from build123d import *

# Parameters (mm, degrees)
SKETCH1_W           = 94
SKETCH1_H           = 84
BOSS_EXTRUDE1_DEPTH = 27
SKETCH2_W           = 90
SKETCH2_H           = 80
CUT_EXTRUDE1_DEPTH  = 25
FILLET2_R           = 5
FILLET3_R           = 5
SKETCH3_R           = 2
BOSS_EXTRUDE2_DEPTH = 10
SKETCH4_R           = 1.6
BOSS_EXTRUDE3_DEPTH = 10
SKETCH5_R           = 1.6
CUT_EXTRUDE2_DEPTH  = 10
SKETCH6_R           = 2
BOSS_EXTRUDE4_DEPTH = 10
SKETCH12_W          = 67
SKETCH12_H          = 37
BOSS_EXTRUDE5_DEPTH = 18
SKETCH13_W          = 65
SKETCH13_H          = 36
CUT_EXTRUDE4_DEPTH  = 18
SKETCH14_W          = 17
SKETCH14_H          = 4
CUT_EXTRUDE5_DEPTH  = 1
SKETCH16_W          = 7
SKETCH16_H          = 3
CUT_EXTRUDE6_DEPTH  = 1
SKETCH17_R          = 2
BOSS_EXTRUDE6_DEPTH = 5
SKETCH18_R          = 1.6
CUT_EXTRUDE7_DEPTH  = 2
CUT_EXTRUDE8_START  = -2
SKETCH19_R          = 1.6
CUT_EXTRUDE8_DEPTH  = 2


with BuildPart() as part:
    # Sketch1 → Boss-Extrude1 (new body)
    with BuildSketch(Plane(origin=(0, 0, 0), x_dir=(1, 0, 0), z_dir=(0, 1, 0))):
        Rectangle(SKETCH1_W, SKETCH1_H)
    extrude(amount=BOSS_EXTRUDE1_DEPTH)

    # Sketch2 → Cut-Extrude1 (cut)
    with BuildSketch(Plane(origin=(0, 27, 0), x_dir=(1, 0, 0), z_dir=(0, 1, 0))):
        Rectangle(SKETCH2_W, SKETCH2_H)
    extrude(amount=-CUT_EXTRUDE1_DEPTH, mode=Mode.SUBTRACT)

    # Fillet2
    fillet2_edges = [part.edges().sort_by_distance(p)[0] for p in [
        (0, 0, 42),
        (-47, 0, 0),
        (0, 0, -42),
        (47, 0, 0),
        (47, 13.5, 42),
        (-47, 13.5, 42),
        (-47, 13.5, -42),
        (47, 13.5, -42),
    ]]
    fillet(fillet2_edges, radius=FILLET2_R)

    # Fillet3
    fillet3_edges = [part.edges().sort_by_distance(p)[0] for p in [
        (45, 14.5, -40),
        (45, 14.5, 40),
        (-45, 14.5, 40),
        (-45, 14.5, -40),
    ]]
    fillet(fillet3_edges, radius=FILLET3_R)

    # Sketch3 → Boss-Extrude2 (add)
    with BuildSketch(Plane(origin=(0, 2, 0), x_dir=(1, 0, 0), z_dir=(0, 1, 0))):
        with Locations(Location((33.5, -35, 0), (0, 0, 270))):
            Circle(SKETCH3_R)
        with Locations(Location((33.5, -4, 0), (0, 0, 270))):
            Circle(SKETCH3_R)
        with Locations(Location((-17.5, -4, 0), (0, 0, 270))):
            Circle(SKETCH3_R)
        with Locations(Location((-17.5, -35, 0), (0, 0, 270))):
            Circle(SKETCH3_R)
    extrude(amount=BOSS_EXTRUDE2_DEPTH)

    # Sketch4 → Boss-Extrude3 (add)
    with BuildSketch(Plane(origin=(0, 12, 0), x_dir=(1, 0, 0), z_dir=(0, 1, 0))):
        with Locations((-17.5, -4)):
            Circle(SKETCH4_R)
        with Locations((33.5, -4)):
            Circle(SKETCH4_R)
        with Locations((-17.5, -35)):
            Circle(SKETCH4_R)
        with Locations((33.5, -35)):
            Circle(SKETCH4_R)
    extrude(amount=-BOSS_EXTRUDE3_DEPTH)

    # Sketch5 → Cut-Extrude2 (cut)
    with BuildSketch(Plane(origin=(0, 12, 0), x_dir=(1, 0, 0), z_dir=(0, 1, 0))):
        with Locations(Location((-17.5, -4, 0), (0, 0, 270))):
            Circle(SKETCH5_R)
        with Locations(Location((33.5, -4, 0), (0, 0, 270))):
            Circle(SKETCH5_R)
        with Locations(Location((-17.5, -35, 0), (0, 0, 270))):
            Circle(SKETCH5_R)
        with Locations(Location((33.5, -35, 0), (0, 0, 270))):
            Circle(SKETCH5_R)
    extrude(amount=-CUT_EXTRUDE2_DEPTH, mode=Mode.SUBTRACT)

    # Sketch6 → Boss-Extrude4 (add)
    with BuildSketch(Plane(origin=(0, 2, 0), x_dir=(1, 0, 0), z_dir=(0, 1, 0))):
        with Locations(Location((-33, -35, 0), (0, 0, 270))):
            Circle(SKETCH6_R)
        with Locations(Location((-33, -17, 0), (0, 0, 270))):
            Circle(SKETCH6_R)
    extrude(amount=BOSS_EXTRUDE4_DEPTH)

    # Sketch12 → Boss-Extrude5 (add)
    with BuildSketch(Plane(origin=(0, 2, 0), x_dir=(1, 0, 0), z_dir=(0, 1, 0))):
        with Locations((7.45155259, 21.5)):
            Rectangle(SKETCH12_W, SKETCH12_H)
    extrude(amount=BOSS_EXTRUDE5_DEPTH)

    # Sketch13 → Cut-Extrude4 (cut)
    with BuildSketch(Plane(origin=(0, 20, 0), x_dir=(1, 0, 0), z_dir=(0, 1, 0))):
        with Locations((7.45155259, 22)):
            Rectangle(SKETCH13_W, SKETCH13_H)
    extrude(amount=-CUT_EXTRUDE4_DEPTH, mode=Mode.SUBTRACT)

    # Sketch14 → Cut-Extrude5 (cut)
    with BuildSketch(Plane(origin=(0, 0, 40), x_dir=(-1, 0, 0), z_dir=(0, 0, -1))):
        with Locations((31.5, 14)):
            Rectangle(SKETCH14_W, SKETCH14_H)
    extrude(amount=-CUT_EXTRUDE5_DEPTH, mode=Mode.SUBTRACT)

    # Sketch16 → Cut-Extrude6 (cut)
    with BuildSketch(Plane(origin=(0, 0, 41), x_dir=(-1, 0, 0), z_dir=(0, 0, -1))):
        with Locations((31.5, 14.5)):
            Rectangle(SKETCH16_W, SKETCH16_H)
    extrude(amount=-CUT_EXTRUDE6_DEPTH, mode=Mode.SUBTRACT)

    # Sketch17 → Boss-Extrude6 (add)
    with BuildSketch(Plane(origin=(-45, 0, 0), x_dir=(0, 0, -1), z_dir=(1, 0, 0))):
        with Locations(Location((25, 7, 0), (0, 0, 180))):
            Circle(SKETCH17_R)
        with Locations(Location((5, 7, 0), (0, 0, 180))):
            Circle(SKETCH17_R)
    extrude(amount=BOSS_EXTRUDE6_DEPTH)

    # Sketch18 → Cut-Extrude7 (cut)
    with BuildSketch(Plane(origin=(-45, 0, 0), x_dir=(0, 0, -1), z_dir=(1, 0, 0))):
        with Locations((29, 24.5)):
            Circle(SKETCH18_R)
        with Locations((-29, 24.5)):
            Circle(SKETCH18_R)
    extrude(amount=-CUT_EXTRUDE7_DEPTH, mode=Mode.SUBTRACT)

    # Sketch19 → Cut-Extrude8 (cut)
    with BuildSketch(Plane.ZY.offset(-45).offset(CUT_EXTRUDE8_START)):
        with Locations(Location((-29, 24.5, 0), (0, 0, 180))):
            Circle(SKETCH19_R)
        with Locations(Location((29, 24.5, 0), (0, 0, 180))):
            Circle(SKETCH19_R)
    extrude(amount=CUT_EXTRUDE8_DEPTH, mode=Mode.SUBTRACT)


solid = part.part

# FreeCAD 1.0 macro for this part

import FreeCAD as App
import Part
import Sketcher

V = App.Vector


def edges_at(feature, points):
    """Names of the edges that pass closest to the given points."""
    edges = feature.Shape.Edges
    near = lambda p: min(range(len(edges)), key=lambda i: edges[i].distToShape(Part.Vertex(*p))[0])
    return sorted({f"Edge{near(p) + 1}" for p in points})

doc = App.newDocument("Part")
params = doc.addObject("Spreadsheet::Sheet", "Params")
for row, (alias, value) in enumerate([
    ("sketch1_width", "94 mm"),
    ("sketch1_height", "84 mm"),
    ("pad1_length", "27 mm"),
    ("sketch2_width", "90 mm"),
    ("sketch2_height", "80 mm"),
    ("pocket1_length", "25 mm"),
    ("fillet_radius", "5 mm"),
    ("fillet2_radius", "5 mm"),
    ("sketch3_diameter", "4 mm"),
    ("pad2_length", "10 mm"),
    ("sketch4_diameter", "3.2 mm"),
    ("pad3_length", "10 mm"),
    ("sketch5_diameter", "3.2 mm"),
    ("pocket2_length", "10 mm"),
    ("sketch6_diameter", "4 mm"),
    ("pad4_length", "10 mm"),
    ("sketch7_width", "67 mm"),
    ("sketch7_height", "37 mm"),
    ("pad5_length", "18 mm"),
    ("sketch8_width", "65 mm"),
    ("sketch8_height", "36 mm"),
    ("pocket3_length", "18 mm"),
    ("sketch9_width", "17 mm"),
    ("sketch9_height", "4 mm"),
    ("pocket4_length", "1 mm"),
    ("sketch10_width", "7 mm"),
    ("sketch10_height", "3 mm"),
    ("pocket5_length", "1 mm"),
    ("sketch11_diameter", "4 mm"),
    ("pad6_length", "5 mm"),
    ("sketch12_diameter", "3.2 mm"),
    ("pocket6_length", "2 mm"),
    ("sketch13_diameter", "3.2 mm"),
    ("pocket7_length", "2 mm"),
], start=1):
    params.set(f"A{row}", alias)
    params.set(f"B{row}", "=" + value)
    params.setAlias(f"B{row}", alias)

body = doc.addObject("PartDesign::Body", "Body")

sketch1 = body.newObject("Sketcher::SketchObject", "Sketch")
sketch1.AttachmentSupport = (doc.getObject("XZ_Plane"), [""])
sketch1.MapMode = "FlatFace"
sketch1.addGeometry(Part.LineSegment(V(-47, -42, 0), V(-47, 42, 0)), False)
sketch1.addGeometry(Part.LineSegment(V(-47, 42, 0), V(47, 42, 0)), False)
sketch1.addGeometry(Part.LineSegment(V(47, 42, 0), V(47, -42, 0)), False)
sketch1.addGeometry(Part.LineSegment(V(47, -42, 0), V(-47, -42, 0)), False)
sketch1.addConstraint(Sketcher.Constraint("Coincident", 0, 2, 1, 1))
sketch1.addConstraint(Sketcher.Constraint("Coincident", 1, 2, 2, 1))
sketch1.addConstraint(Sketcher.Constraint("Coincident", 2, 2, 3, 1))
sketch1.addConstraint(Sketcher.Constraint("Coincident", 3, 2, 0, 1))
sketch1.addConstraint(Sketcher.Constraint("Vertical", 0))
sketch1.addConstraint(Sketcher.Constraint("Horizontal", 1))
sketch1.addConstraint(Sketcher.Constraint("Vertical", 2))
sketch1.addConstraint(Sketcher.Constraint("Horizontal", 3))
sketch1.addConstraint(Sketcher.Constraint("Symmetric", 0, 2, 2, 2, -1, 1))
sketch1.addConstraint(Sketcher.Constraint("DistanceX", 1, 1, 1, 2, 94.0))
sketch1.addConstraint(Sketcher.Constraint("DistanceY", 0, 1, 0, 2, 84.0))
sketch1.setExpression("Constraints[9]", "Params.sketch1_width")
sketch1.setExpression("Constraints[10]", "Params.sketch1_height")
pad1 = body.newObject("PartDesign::Pad", "Pad")
pad1.Profile = sketch1
pad1.setExpression("Length", "Params.pad1_length")
pad1.Reversed = True

sketch2 = body.newObject("Sketcher::SketchObject", "Sketch001")
sketch2.AttachmentSupport = (doc.getObject("XZ_Plane"), [""])
sketch2.MapMode = "FlatFace"
sketch2.AttachmentOffset = App.Placement(V(0, 0, -27), App.Rotation())
sketch2.addGeometry(Part.LineSegment(V(-45, -40, 0), V(-45, 40, 0)), False)
sketch2.addGeometry(Part.LineSegment(V(-45, 40, 0), V(45, 40, 0)), False)
sketch2.addGeometry(Part.LineSegment(V(45, 40, 0), V(45, -40, 0)), False)
sketch2.addGeometry(Part.LineSegment(V(45, -40, 0), V(-45, -40, 0)), False)
sketch2.addConstraint(Sketcher.Constraint("Coincident", 0, 2, 1, 1))
sketch2.addConstraint(Sketcher.Constraint("Coincident", 1, 2, 2, 1))
sketch2.addConstraint(Sketcher.Constraint("Coincident", 2, 2, 3, 1))
sketch2.addConstraint(Sketcher.Constraint("Coincident", 3, 2, 0, 1))
sketch2.addConstraint(Sketcher.Constraint("Vertical", 0))
sketch2.addConstraint(Sketcher.Constraint("Horizontal", 1))
sketch2.addConstraint(Sketcher.Constraint("Vertical", 2))
sketch2.addConstraint(Sketcher.Constraint("Horizontal", 3))
sketch2.addConstraint(Sketcher.Constraint("Symmetric", 0, 2, 2, 2, -1, 1))
sketch2.addConstraint(Sketcher.Constraint("DistanceX", 1, 1, 1, 2, 90.0))
sketch2.addConstraint(Sketcher.Constraint("DistanceY", 0, 1, 0, 2, 80.0))
sketch2.setExpression("Constraints[9]", "Params.sketch2_width")
sketch2.setExpression("Constraints[10]", "Params.sketch2_height")
pocket1 = body.newObject("PartDesign::Pocket", "Pocket")
pocket1.Profile = sketch2
pocket1.setExpression("Length", "Params.pocket1_length")
pocket1.Reversed = True
doc.recompute()

fillet = body.newObject("PartDesign::Fillet", "Fillet")
fillet.Base = (pocket1, edges_at(pocket1, [
    (0, 0, 42),
    (-47, 0, 0),
    (0, 0, -42),
    (47, 0, 0),
    (47, 13.5, 42),
    (-47, 13.5, 42),
    (-47, 13.5, -42),
    (47, 13.5, -42),
]))
fillet.setExpression("Radius", "Params.fillet_radius")
doc.recompute()

fillet2 = body.newObject("PartDesign::Fillet", "Fillet001")
fillet2.Base = (fillet, edges_at(fillet, [
    (45, 14.5, -40),
    (45, 14.5, 40),
    (-45, 14.5, 40),
    (-45, 14.5, -40),
]))
fillet2.setExpression("Radius", "Params.fillet2_radius")

sketch3 = body.newObject("Sketcher::SketchObject", "Sketch002")
sketch3.AttachmentSupport = (doc.getObject("XZ_Plane"), [""])
sketch3.MapMode = "FlatFace"
sketch3.AttachmentOffset = App.Placement(V(0, 0, -2), App.Rotation())
sketch3.addGeometry(Part.Circle(V(33.5, 35, 0), V(0, 0, 1), 2), False)
sketch3.addGeometry(Part.Circle(V(33.5, 4, 0), V(0, 0, 1), 2), False)
sketch3.addGeometry(Part.Circle(V(-17.5, 4, 0), V(0, 0, 1), 2), False)
sketch3.addGeometry(Part.Circle(V(-17.5, 35, 0), V(0, 0, 1), 2), False)
sketch3.addConstraint(Sketcher.Constraint("Equal", 0, 1))
sketch3.addConstraint(Sketcher.Constraint("Equal", 1, 2))
sketch3.addConstraint(Sketcher.Constraint("Equal", 2, 3))
sketch3.addConstraint(Sketcher.Constraint("Horizontal", 1, 3, 2, 3))
sketch3.addConstraint(Sketcher.Constraint("Horizontal", 0, 3, 3, 3))
sketch3.addConstraint(Sketcher.Constraint("Vertical", 0, 3, 1, 3))
sketch3.addConstraint(Sketcher.Constraint("Vertical", 2, 3, 3, 3))
sketch3.addConstraint(Sketcher.Constraint("Diameter", 0, 4.0))
sketch3.addConstraint(Sketcher.Constraint("DistanceY", -1, 1, 0, 3, 35.0))
sketch3.addConstraint(Sketcher.Constraint("DistanceY", -1, 1, 1, 3, 4.0))
sketch3.addConstraint(Sketcher.Constraint("DistanceX", 2, 3, 1, 3, 51.0))
sketch3.addConstraint(Sketcher.Constraint("DistanceX", -1, 1, 0, 3, 33.5))
sketch3.setExpression("Constraints[7]", "Params.sketch3_diameter")
pad2 = body.newObject("PartDesign::Pad", "Pad001")
pad2.Profile = sketch3
pad2.setExpression("Length", "Params.pad2_length")
pad2.Reversed = True

sketch4 = body.newObject("Sketcher::SketchObject", "Sketch003")
sketch4.AttachmentSupport = (doc.getObject("XZ_Plane"), [""])
sketch4.MapMode = "FlatFace"
sketch4.AttachmentOffset = App.Placement(V(0, 0, -12), App.Rotation())
sketch4.addGeometry(Part.Circle(V(-17.5, 4, 0), V(0, 0, 1), 1.6), False)
sketch4.addGeometry(Part.Circle(V(33.5, 4, 0), V(0, 0, 1), 1.6), False)
sketch4.addGeometry(Part.Circle(V(-17.5, 35, 0), V(0, 0, 1), 1.6), False)
sketch4.addGeometry(Part.Circle(V(33.5, 35, 0), V(0, 0, 1), 1.6), False)
sketch4.addConstraint(Sketcher.Constraint("Equal", 0, 1))
sketch4.addConstraint(Sketcher.Constraint("Equal", 1, 2))
sketch4.addConstraint(Sketcher.Constraint("Equal", 2, 3))
sketch4.addConstraint(Sketcher.Constraint("Horizontal", 0, 3, 1, 3))
sketch4.addConstraint(Sketcher.Constraint("Horizontal", 2, 3, 3, 3))
sketch4.addConstraint(Sketcher.Constraint("Vertical", 0, 3, 2, 3))
sketch4.addConstraint(Sketcher.Constraint("Vertical", 1, 3, 3, 3))
sketch4.addConstraint(Sketcher.Constraint("Diameter", 0, 3.2))
sketch4.addConstraint(Sketcher.Constraint("DistanceY", -1, 1, 0, 3, 4.0))
sketch4.addConstraint(Sketcher.Constraint("DistanceY", -1, 1, 2, 3, 35.0))
sketch4.addConstraint(Sketcher.Constraint("DistanceX", 0, 3, 1, 3, 51.0))
sketch4.addConstraint(Sketcher.Constraint("DistanceX", 0, 3, -1, 1, 17.5))
sketch4.setExpression("Constraints[7]", "Params.sketch4_diameter")
pad3 = body.newObject("PartDesign::Pad", "Pad002")
pad3.Profile = sketch4
pad3.setExpression("Length", "Params.pad3_length")

sketch5 = body.newObject("Sketcher::SketchObject", "Sketch004")
sketch5.AttachmentSupport = (doc.getObject("XZ_Plane"), [""])
sketch5.MapMode = "FlatFace"
sketch5.AttachmentOffset = App.Placement(V(0, 0, -12), App.Rotation())
sketch5.addGeometry(Part.Circle(V(-17.5, 4, 0), V(0, 0, 1), 1.6), False)
sketch5.addGeometry(Part.Circle(V(33.5, 4, 0), V(0, 0, 1), 1.6), False)
sketch5.addGeometry(Part.Circle(V(-17.5, 35, 0), V(0, 0, 1), 1.6), False)
sketch5.addGeometry(Part.Circle(V(33.5, 35, 0), V(0, 0, 1), 1.6), False)
sketch5.addConstraint(Sketcher.Constraint("Equal", 0, 1))
sketch5.addConstraint(Sketcher.Constraint("Equal", 1, 2))
sketch5.addConstraint(Sketcher.Constraint("Equal", 2, 3))
sketch5.addConstraint(Sketcher.Constraint("Horizontal", 0, 3, 1, 3))
sketch5.addConstraint(Sketcher.Constraint("Horizontal", 2, 3, 3, 3))
sketch5.addConstraint(Sketcher.Constraint("Vertical", 0, 3, 2, 3))
sketch5.addConstraint(Sketcher.Constraint("Vertical", 1, 3, 3, 3))
sketch5.addConstraint(Sketcher.Constraint("Diameter", 0, 3.2))
sketch5.addConstraint(Sketcher.Constraint("DistanceY", -1, 1, 0, 3, 4.0))
sketch5.addConstraint(Sketcher.Constraint("DistanceY", -1, 1, 2, 3, 35.0))
sketch5.addConstraint(Sketcher.Constraint("DistanceX", 0, 3, 1, 3, 51.0))
sketch5.addConstraint(Sketcher.Constraint("DistanceX", 0, 3, -1, 1, 17.5))
sketch5.setExpression("Constraints[7]", "Params.sketch5_diameter")
pocket2 = body.newObject("PartDesign::Pocket", "Pocket001")
pocket2.Profile = sketch5
pocket2.setExpression("Length", "Params.pocket2_length")
pocket2.Reversed = True

sketch6 = body.newObject("Sketcher::SketchObject", "Sketch005")
sketch6.AttachmentSupport = (doc.getObject("XZ_Plane"), [""])
sketch6.MapMode = "FlatFace"
sketch6.AttachmentOffset = App.Placement(V(0, 0, -2), App.Rotation())
sketch6.addGeometry(Part.Circle(V(-33, 35, 0), V(0, 0, 1), 2), False)
sketch6.addGeometry(Part.Circle(V(-33, 17, 0), V(0, 0, 1), 2), False)
sketch6.addConstraint(Sketcher.Constraint("Equal", 0, 1))
sketch6.addConstraint(Sketcher.Constraint("Vertical", 0, 3, 1, 3))
sketch6.addConstraint(Sketcher.Constraint("Diameter", 0, 4.0))
sketch6.addConstraint(Sketcher.Constraint("DistanceX", 0, 3, -1, 1, 33.0))
sketch6.addConstraint(Sketcher.Constraint("DistanceY", -1, 1, 0, 3, 35.0))
sketch6.addConstraint(Sketcher.Constraint("DistanceY", -1, 1, 1, 3, 17.0))
sketch6.setExpression("Constraints[2]", "Params.sketch6_diameter")
pad4 = body.newObject("PartDesign::Pad", "Pad003")
pad4.Profile = sketch6
pad4.setExpression("Length", "Params.pad4_length")
pad4.Reversed = True

sketch7 = body.newObject("Sketcher::SketchObject", "Sketch006")
sketch7.AttachmentSupport = (doc.getObject("XZ_Plane"), [""])
sketch7.MapMode = "FlatFace"
sketch7.AttachmentOffset = App.Placement(V(0, 0, -2), App.Rotation())
sketch7.addGeometry(Part.LineSegment(V(-26.048447, -40, 0), V(-26.048447, -3, 0)), False)
sketch7.addGeometry(Part.LineSegment(V(-26.048447, -3, 0), V(40.951553, -3, 0)), False)
sketch7.addGeometry(Part.LineSegment(V(40.951553, -3, 0), V(40.951553, -40, 0)), False)
sketch7.addGeometry(Part.LineSegment(V(40.951553, -40, 0), V(-26.048447, -40, 0)), False)
sketch7.addConstraint(Sketcher.Constraint("Coincident", 0, 2, 1, 1))
sketch7.addConstraint(Sketcher.Constraint("Coincident", 1, 2, 2, 1))
sketch7.addConstraint(Sketcher.Constraint("Coincident", 2, 2, 3, 1))
sketch7.addConstraint(Sketcher.Constraint("Coincident", 3, 2, 0, 1))
sketch7.addConstraint(Sketcher.Constraint("Vertical", 0))
sketch7.addConstraint(Sketcher.Constraint("Horizontal", 1))
sketch7.addConstraint(Sketcher.Constraint("Vertical", 2))
sketch7.addConstraint(Sketcher.Constraint("Horizontal", 3))
sketch7.addConstraint(Sketcher.Constraint("DistanceX", 1, 1, 1, 2, 67.0))
sketch7.addConstraint(Sketcher.Constraint("DistanceY", 0, 1, 0, 2, 37.0))
sketch7.addConstraint(Sketcher.Constraint("DistanceY", 0, 2, -1, 1, 3.0))
sketch7.addConstraint(Sketcher.Constraint("DistanceX", 0, 2, -1, 1, 26.048447))
sketch7.setExpression("Constraints[8]", "Params.sketch7_width")
sketch7.setExpression("Constraints[9]", "Params.sketch7_height")
pad5 = body.newObject("PartDesign::Pad", "Pad004")
pad5.Profile = sketch7
pad5.setExpression("Length", "Params.pad5_length")
pad5.Reversed = True

sketch8 = body.newObject("Sketcher::SketchObject", "Sketch007")
sketch8.AttachmentSupport = (doc.getObject("XZ_Plane"), [""])
sketch8.MapMode = "FlatFace"
sketch8.AttachmentOffset = App.Placement(V(0, 0, -20), App.Rotation())
sketch8.addGeometry(Part.LineSegment(V(-25.048447, -40, 0), V(-25.048447, -4, 0)), False)
sketch8.addGeometry(Part.LineSegment(V(-25.048447, -4, 0), V(39.951553, -4, 0)), False)
sketch8.addGeometry(Part.LineSegment(V(39.951553, -4, 0), V(39.951553, -40, 0)), False)
sketch8.addGeometry(Part.LineSegment(V(39.951553, -40, 0), V(-25.048447, -40, 0)), False)
sketch8.addConstraint(Sketcher.Constraint("Coincident", 0, 2, 1, 1))
sketch8.addConstraint(Sketcher.Constraint("Coincident", 1, 2, 2, 1))
sketch8.addConstraint(Sketcher.Constraint("Coincident", 2, 2, 3, 1))
sketch8.addConstraint(Sketcher.Constraint("Coincident", 3, 2, 0, 1))
sketch8.addConstraint(Sketcher.Constraint("Vertical", 0))
sketch8.addConstraint(Sketcher.Constraint("Horizontal", 1))
sketch8.addConstraint(Sketcher.Constraint("Vertical", 2))
sketch8.addConstraint(Sketcher.Constraint("Horizontal", 3))
sketch8.addConstraint(Sketcher.Constraint("DistanceX", 1, 1, 1, 2, 65.0))
sketch8.addConstraint(Sketcher.Constraint("DistanceY", 0, 1, 0, 2, 36.0))
sketch8.addConstraint(Sketcher.Constraint("DistanceY", 0, 2, -1, 1, 4.0))
sketch8.addConstraint(Sketcher.Constraint("DistanceX", 0, 2, -1, 1, 25.048447))
sketch8.setExpression("Constraints[8]", "Params.sketch8_width")
sketch8.setExpression("Constraints[9]", "Params.sketch8_height")
pocket3 = body.newObject("PartDesign::Pocket", "Pocket002")
pocket3.Profile = sketch8
pocket3.setExpression("Length", "Params.pocket3_length")
pocket3.Reversed = True

sketch9 = body.newObject("Sketcher::SketchObject", "Sketch008")
sketch9.AttachmentSupport = (doc.getObject("XY_Plane"), [""])
sketch9.MapMode = "FlatFace"
sketch9.AttachmentOffset = App.Placement(V(0, 0, 40), App.Rotation())
sketch9.addGeometry(Part.LineSegment(V(-23, 16, 0), V(-23, 12, 0)), False)
sketch9.addGeometry(Part.LineSegment(V(-23, 12, 0), V(-40, 12, 0)), False)
sketch9.addGeometry(Part.LineSegment(V(-40, 12, 0), V(-40, 16, 0)), False)
sketch9.addGeometry(Part.LineSegment(V(-40, 16, 0), V(-23, 16, 0)), False)
sketch9.addConstraint(Sketcher.Constraint("Coincident", 0, 2, 1, 1))
sketch9.addConstraint(Sketcher.Constraint("Coincident", 1, 2, 2, 1))
sketch9.addConstraint(Sketcher.Constraint("Coincident", 2, 2, 3, 1))
sketch9.addConstraint(Sketcher.Constraint("Coincident", 3, 2, 0, 1))
sketch9.addConstraint(Sketcher.Constraint("Vertical", 0))
sketch9.addConstraint(Sketcher.Constraint("Horizontal", 1))
sketch9.addConstraint(Sketcher.Constraint("Vertical", 2))
sketch9.addConstraint(Sketcher.Constraint("Horizontal", 3))
sketch9.addConstraint(Sketcher.Constraint("DistanceX", 1, 2, 1, 1, 17.0))
sketch9.addConstraint(Sketcher.Constraint("DistanceY", 0, 2, 0, 1, 4.0))
sketch9.addConstraint(Sketcher.Constraint("DistanceX", 0, 2, -1, 1, 23.0))
sketch9.addConstraint(Sketcher.Constraint("DistanceY", -1, 1, 0, 2, 12.0))
sketch9.setExpression("Constraints[8]", "Params.sketch9_width")
sketch9.setExpression("Constraints[9]", "Params.sketch9_height")
pocket4 = body.newObject("PartDesign::Pocket", "Pocket003")
pocket4.Profile = sketch9
pocket4.setExpression("Length", "Params.pocket4_length")
pocket4.Reversed = True

sketch10 = body.newObject("Sketcher::SketchObject", "Sketch009")
sketch10.AttachmentSupport = (doc.getObject("XY_Plane"), [""])
sketch10.MapMode = "FlatFace"
sketch10.AttachmentOffset = App.Placement(V(0, 0, 41), App.Rotation())
sketch10.addGeometry(Part.LineSegment(V(-28, 16, 0), V(-28, 13, 0)), False)
sketch10.addGeometry(Part.LineSegment(V(-28, 13, 0), V(-35, 13, 0)), False)
sketch10.addGeometry(Part.LineSegment(V(-35, 13, 0), V(-35, 16, 0)), False)
sketch10.addGeometry(Part.LineSegment(V(-35, 16, 0), V(-28, 16, 0)), False)
sketch10.addConstraint(Sketcher.Constraint("Coincident", 0, 2, 1, 1))
sketch10.addConstraint(Sketcher.Constraint("Coincident", 1, 2, 2, 1))
sketch10.addConstraint(Sketcher.Constraint("Coincident", 2, 2, 3, 1))
sketch10.addConstraint(Sketcher.Constraint("Coincident", 3, 2, 0, 1))
sketch10.addConstraint(Sketcher.Constraint("Vertical", 0))
sketch10.addConstraint(Sketcher.Constraint("Horizontal", 1))
sketch10.addConstraint(Sketcher.Constraint("Vertical", 2))
sketch10.addConstraint(Sketcher.Constraint("Horizontal", 3))
sketch10.addConstraint(Sketcher.Constraint("DistanceX", 1, 2, 1, 1, 7.0))
sketch10.addConstraint(Sketcher.Constraint("DistanceY", 0, 2, 0, 1, 3.0))
sketch10.addConstraint(Sketcher.Constraint("DistanceX", 0, 2, -1, 1, 28.0))
sketch10.addConstraint(Sketcher.Constraint("DistanceY", -1, 1, 0, 2, 13.0))
sketch10.setExpression("Constraints[8]", "Params.sketch10_width")
sketch10.setExpression("Constraints[9]", "Params.sketch10_height")
pocket5 = body.newObject("PartDesign::Pocket", "Pocket004")
pocket5.Profile = sketch10
pocket5.setExpression("Length", "Params.pocket5_length")
pocket5.Reversed = True

sketch11 = body.newObject("Sketcher::SketchObject", "Sketch010")
sketch11.AttachmentSupport = (doc.getObject("YZ_Plane"), [""])
sketch11.MapMode = "FlatFace"
sketch11.AttachmentOffset = App.Placement(V(0, 0, -45), App.Rotation())
sketch11.addGeometry(Part.Circle(V(7, -25, 0), V(0, 0, 1), 2), False)
sketch11.addGeometry(Part.Circle(V(7, -5, 0), V(0, 0, 1), 2), False)
sketch11.addConstraint(Sketcher.Constraint("Equal", 0, 1))
sketch11.addConstraint(Sketcher.Constraint("Vertical", 0, 3, 1, 3))
sketch11.addConstraint(Sketcher.Constraint("Diameter", 0, 4.0))
sketch11.addConstraint(Sketcher.Constraint("DistanceX", -1, 1, 0, 3, 7.0))
sketch11.addConstraint(Sketcher.Constraint("DistanceY", 0, 3, -1, 1, 25.0))
sketch11.addConstraint(Sketcher.Constraint("DistanceY", 1, 3, -1, 1, 5.0))
sketch11.setExpression("Constraints[2]", "Params.sketch11_diameter")
pad6 = body.newObject("PartDesign::Pad", "Pad005")
pad6.Profile = sketch11
pad6.setExpression("Length", "Params.pad6_length")

sketch12 = body.newObject("Sketcher::SketchObject", "Sketch011")
sketch12.AttachmentSupport = (doc.getObject("YZ_Plane"), [""])
sketch12.MapMode = "FlatFace"
sketch12.AttachmentOffset = App.Placement(V(0, 0, -45), App.Rotation())
sketch12.addGeometry(Part.Circle(V(24.5, -29, 0), V(0, 0, 1), 1.6), False)
sketch12.addGeometry(Part.Circle(V(24.5, 29, 0), V(0, 0, 1), 1.6), False)
sketch12.addConstraint(Sketcher.Constraint("Equal", 0, 1))
sketch12.addConstraint(Sketcher.Constraint("Symmetric", 0, 3, 1, 3, -1))
sketch12.addConstraint(Sketcher.Constraint("Diameter", 0, 3.2))
sketch12.addConstraint(Sketcher.Constraint("DistanceY", 0, 3, -1, 1, 29.0))
sketch12.addConstraint(Sketcher.Constraint("DistanceX", -1, 1, 0, 3, 24.5))
sketch12.setExpression("Constraints[2]", "Params.sketch12_diameter")
pocket6 = body.newObject("PartDesign::Pocket", "Pocket005")
pocket6.Profile = sketch12
pocket6.setExpression("Length", "Params.pocket6_length")

sketch13 = body.newObject("Sketcher::SketchObject", "Sketch012")
sketch13.AttachmentSupport = (doc.getObject("YZ_Plane"), [""])
sketch13.MapMode = "FlatFace"
sketch13.AttachmentOffset = App.Placement(V(0, 0, 47), App.Rotation())
sketch13.addGeometry(Part.Circle(V(24.5, -29, 0), V(0, 0, 1), 1.6), False)
sketch13.addGeometry(Part.Circle(V(24.5, 29, 0), V(0, 0, 1), 1.6), False)
sketch13.addConstraint(Sketcher.Constraint("Equal", 0, 1))
sketch13.addConstraint(Sketcher.Constraint("Symmetric", 0, 3, 1, 3, -1))
sketch13.addConstraint(Sketcher.Constraint("Diameter", 0, 3.2))
sketch13.addConstraint(Sketcher.Constraint("DistanceY", 0, 3, -1, 1, 29.0))
sketch13.addConstraint(Sketcher.Constraint("DistanceX", -1, 1, 0, 3, 24.5))
sketch13.setExpression("Constraints[2]", "Params.sketch13_diameter")
pocket7 = body.newObject("PartDesign::Pocket", "Pocket006")
pocket7.Profile = sketch13
pocket7.setExpression("Length", "Params.pocket7_length")

doc.recompute()
